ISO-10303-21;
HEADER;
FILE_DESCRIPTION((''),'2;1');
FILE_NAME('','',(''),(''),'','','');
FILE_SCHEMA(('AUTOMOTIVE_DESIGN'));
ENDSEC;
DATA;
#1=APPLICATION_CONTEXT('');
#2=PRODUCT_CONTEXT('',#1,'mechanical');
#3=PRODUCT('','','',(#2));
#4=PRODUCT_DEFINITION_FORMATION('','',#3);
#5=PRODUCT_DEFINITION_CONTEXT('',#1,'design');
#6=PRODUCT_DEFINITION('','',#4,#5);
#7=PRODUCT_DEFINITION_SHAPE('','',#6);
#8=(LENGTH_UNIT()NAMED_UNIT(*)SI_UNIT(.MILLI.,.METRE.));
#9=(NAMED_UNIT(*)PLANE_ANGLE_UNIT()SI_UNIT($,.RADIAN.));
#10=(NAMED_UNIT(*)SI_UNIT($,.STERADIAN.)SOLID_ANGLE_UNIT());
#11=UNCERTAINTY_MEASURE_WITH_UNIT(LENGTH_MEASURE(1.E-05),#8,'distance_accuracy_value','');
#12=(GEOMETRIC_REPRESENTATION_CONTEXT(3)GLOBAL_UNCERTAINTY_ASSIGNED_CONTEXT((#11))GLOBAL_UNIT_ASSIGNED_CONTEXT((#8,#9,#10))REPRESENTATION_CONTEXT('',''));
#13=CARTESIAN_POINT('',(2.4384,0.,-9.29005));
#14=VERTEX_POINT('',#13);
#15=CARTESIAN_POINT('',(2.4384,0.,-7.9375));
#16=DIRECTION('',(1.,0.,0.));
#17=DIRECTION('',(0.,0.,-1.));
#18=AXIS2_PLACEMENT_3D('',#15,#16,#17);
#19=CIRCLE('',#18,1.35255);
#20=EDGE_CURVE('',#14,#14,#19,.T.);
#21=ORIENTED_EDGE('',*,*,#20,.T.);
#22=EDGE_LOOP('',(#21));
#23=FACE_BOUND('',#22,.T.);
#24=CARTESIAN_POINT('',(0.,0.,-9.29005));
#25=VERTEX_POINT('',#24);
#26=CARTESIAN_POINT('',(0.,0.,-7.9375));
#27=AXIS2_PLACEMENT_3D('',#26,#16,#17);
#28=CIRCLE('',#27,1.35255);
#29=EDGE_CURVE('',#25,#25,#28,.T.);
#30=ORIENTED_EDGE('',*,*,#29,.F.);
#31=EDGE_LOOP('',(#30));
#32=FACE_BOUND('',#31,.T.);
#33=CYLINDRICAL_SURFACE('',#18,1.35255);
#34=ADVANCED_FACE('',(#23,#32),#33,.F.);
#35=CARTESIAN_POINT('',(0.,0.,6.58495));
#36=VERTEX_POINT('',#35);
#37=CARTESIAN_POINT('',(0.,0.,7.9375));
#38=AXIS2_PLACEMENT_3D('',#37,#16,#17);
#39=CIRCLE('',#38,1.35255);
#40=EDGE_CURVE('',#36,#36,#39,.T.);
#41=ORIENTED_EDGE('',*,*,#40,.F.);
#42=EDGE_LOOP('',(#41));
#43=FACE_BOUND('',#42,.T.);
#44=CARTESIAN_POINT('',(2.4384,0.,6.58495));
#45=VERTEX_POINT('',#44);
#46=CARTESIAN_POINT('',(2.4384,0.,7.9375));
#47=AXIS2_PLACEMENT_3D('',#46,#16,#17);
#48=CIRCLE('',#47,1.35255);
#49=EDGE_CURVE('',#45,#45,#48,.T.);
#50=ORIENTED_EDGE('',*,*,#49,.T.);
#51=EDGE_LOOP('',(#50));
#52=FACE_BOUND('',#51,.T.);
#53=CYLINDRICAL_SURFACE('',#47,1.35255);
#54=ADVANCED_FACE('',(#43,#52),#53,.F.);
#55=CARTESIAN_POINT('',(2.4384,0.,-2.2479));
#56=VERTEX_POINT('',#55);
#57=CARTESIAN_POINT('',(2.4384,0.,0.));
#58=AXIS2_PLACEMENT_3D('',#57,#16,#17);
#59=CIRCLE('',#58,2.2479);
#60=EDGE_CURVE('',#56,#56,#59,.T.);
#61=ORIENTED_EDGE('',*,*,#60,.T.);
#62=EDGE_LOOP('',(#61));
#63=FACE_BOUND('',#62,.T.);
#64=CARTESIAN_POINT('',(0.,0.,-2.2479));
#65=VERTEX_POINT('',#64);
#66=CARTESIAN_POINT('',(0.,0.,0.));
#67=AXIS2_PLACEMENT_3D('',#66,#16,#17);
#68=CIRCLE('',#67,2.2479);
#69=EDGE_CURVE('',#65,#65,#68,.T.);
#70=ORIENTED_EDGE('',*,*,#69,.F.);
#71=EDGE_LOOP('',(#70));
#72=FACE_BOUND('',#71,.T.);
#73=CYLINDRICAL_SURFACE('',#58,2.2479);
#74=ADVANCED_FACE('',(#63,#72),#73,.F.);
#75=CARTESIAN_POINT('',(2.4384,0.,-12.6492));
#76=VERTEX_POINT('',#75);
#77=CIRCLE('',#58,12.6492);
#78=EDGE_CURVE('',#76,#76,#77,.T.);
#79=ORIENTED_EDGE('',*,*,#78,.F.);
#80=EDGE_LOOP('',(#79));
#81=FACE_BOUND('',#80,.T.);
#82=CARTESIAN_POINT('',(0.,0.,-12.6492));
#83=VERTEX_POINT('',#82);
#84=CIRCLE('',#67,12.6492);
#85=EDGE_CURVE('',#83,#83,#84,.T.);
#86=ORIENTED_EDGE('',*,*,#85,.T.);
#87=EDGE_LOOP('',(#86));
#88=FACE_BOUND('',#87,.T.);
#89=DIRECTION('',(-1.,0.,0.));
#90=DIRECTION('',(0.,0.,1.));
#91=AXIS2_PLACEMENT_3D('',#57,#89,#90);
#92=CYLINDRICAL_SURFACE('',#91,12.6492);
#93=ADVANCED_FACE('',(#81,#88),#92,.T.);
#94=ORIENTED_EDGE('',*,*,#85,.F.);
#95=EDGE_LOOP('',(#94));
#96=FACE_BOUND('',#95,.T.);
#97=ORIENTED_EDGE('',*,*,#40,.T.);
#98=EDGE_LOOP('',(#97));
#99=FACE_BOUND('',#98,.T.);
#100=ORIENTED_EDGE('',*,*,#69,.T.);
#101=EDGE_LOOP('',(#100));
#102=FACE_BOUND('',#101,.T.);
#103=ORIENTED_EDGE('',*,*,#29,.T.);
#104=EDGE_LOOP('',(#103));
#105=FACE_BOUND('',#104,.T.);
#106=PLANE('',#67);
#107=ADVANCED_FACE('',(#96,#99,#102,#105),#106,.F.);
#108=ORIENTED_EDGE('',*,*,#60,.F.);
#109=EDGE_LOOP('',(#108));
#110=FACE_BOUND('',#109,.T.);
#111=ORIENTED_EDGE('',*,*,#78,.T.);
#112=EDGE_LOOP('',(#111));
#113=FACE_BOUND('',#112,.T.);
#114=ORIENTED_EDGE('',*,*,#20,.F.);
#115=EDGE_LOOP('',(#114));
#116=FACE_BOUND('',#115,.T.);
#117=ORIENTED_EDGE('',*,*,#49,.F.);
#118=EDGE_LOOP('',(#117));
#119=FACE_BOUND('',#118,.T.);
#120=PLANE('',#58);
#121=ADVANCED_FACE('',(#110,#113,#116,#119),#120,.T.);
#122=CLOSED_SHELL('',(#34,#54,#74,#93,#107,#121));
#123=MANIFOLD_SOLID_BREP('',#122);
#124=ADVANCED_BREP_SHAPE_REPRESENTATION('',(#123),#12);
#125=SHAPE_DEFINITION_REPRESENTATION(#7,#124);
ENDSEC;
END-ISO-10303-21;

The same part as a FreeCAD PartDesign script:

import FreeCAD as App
import Part
import Sketcher
from FreeCAD import Vector
Q = App.Units.Quantity

doc = App.newDocument("Part")
params = doc.addObject("Spreadsheet::Sheet", "Params")
for row, (alias, value) in enumerate([
    ("sketch1_diameter", "0.996 in"),
    ("pad1_length", "0.096 in"),
    ("sketch2_diameter", "0.177 in"),
    ("hole_diameter", "0.177 in"),
    ("hole2_diameter", "0.1065 in"),
], start=1):
    params.set(f"A{row}", alias)
    params.set(f"B{row}", "=" + value)
    params.setAlias(f"B{row}", alias)

body = doc.addObject("PartDesign::Body", "Body")

sketch1 = body.newObject("Sketcher::SketchObject", "Sketch")
sketch1.AttachmentSupport = (doc.getObject("YZ_Plane"), [""])
sketch1.MapMode = "FlatFace"
sketch1.addGeometry(Part.Circle(Vector(0, 0, 0), Vector(0, 0, 1), 12.6492), False)
sketch1.addConstraint([
    Sketcher.Constraint("Coincident", 0, 3, -1, 1),
    Sketcher.Constraint("Diameter", 0, Q("0.996 in")),
])
sketch1.setExpression("Constraints[1]", "Params.sketch1_diameter")
pad1 = body.newObject("PartDesign::Pad", "Pad")
pad1.Profile = sketch1
pad1.setExpression("Length", "Params.pad1_length")

sketch2 = body.newObject("Sketcher::SketchObject", "Sketch001")
sketch2.AttachmentSupport = (doc.getObject("YZ_Plane"), [""])
sketch2.MapMode = "FlatFace"
sketch2.AttachmentOffset = App.Placement(Vector(0, 0, 0.096 * 25.4), App.Rotation())
sketch2.addGeometry(Part.Circle(Vector(0, 0, 0), Vector(0, 0, 1), 2.2479), False)
sketch2.addConstraint([
    Sketcher.Constraint("Coincident", 0, 3, -1, 1),
    Sketcher.Constraint("Diameter", 0, Q("0.177 in")),
])
sketch2.setExpression("Constraints[1]", "Params.sketch2_diameter")
doc.recompute()
hole = body.newObject("PartDesign::Hole", "Hole")
hole.Profile = sketch2
hole.ThreadType = "None"
hole.setExpression("Diameter", "Params.hole_diameter")
hole.DepthType = "ThroughAll"

sketch3 = body.newObject("Sketcher::SketchObject", "Sketch002")
sketch3.AttachmentSupport = (doc.getObject("YZ_Plane"), [""])
sketch3.MapMode = "FlatFace"
sketch3.AttachmentOffset = App.Placement(Vector(0, 0, 0.096 * 25.4), App.Rotation())
sketch3.addGeometry([
    Part.Circle(Vector(0, 7.9375, 0), Vector(0, 0, 1), 1.35255),
    Part.Circle(Vector(0, -7.9375, 0), Vector(0, 0, 1), 1.35255),
], False)
sketch3.addConstraint([
    Sketcher.Constraint("Equal", 0, 1),
    Sketcher.Constraint("Symmetric", 0, 3, 1, 3, -1, 1),
    Sketcher.Constraint("PointOnObject", 0, 3, -2),
    Sketcher.Constraint("Diameter", 0, Q("0.1065 in")),
    Sketcher.Constraint("DistanceY", -1, 1, 0, 3, Q("0.3125 in")),
])
doc.recompute()
hole2 = body.newObject("PartDesign::Hole", "Hole001")
hole2.Profile = sketch3
hole2.ThreadType = "None"
hole2.setExpression("Diameter", "Params.hole2_diameter")
hole2.DepthType = "ThroughAll"

doc.recompute()
